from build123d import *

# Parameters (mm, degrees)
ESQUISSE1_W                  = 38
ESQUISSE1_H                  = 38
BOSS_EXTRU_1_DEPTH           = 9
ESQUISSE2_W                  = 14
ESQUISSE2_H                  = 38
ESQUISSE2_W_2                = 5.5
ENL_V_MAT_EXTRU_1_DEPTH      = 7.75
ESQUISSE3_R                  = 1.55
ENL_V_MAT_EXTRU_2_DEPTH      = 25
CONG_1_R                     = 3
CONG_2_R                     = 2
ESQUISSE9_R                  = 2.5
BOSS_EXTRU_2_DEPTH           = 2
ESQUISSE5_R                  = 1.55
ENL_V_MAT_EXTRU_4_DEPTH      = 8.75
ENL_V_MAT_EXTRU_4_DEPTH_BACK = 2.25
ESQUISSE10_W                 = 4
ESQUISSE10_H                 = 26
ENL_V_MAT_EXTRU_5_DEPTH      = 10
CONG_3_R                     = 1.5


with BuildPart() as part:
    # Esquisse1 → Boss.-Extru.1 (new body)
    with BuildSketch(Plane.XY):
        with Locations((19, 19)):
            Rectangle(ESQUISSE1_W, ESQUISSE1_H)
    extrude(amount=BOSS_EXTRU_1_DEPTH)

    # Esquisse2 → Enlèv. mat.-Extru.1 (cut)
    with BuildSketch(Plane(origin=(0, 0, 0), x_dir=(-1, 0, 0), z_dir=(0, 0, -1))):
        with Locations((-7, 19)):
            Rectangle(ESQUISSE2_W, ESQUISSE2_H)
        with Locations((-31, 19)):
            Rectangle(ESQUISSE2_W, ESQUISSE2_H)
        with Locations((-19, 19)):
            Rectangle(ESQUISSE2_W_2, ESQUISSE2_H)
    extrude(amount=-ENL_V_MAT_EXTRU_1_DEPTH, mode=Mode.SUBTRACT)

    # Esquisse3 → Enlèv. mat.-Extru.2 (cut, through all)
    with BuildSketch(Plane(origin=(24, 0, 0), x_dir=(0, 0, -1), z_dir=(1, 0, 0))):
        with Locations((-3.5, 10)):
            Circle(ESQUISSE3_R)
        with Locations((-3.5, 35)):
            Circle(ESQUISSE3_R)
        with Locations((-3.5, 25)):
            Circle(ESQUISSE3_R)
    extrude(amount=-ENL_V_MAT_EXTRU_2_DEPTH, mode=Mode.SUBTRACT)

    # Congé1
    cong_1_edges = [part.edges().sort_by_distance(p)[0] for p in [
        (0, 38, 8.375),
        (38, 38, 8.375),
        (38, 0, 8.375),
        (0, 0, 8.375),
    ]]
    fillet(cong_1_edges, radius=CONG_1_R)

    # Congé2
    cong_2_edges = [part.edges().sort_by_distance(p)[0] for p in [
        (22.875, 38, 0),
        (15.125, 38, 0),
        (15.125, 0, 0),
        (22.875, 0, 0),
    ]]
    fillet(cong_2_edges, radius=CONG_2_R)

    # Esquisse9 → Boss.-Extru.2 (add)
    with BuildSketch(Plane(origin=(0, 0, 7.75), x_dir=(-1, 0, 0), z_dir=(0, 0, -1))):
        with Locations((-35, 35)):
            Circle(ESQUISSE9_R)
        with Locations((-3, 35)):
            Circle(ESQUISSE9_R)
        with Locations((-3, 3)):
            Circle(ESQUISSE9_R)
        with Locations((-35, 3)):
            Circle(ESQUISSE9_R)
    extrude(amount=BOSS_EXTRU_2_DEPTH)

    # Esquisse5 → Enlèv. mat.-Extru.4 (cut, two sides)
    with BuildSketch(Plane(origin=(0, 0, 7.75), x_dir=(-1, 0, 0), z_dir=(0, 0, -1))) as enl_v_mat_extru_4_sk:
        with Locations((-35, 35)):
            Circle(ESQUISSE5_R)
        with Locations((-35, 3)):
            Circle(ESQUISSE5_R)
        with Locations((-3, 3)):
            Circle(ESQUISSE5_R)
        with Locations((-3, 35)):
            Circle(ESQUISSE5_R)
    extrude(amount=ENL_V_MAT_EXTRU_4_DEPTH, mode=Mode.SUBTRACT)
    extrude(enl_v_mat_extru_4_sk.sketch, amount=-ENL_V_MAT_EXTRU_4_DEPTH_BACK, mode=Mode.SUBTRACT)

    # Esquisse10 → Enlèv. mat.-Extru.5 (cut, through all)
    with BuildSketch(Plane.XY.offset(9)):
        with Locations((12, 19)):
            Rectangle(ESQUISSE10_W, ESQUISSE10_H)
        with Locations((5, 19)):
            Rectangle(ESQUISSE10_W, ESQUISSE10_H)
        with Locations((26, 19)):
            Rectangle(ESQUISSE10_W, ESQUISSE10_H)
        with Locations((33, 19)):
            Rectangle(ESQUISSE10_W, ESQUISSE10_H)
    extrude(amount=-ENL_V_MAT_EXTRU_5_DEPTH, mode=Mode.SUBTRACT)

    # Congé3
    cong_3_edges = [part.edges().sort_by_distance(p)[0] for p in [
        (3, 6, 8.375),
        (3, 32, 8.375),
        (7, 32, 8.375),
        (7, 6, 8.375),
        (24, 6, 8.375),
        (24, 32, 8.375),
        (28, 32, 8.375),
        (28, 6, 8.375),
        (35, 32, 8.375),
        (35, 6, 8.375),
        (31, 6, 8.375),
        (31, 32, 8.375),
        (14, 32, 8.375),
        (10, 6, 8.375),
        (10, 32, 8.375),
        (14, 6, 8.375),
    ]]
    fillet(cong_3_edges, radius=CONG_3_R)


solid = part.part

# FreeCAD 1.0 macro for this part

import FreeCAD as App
import Part
import Sketcher

V = App.Vector


def edges_at(feature, points):
    """Names of the edges that pass closest to the given points."""
    edges = feature.Shape.Edges
    near = lambda p: min(range(len(edges)), key=lambda i: edges[i].distToShape(Part.Vertex(*p))[0])
    return sorted({f"Edge{near(p) + 1}" for p in points})

doc = App.newDocument("Part")
body = doc.addObject("PartDesign::Body", "Body")

# Sketch on XY plane
sketch1 = body.newObject("Sketcher::SketchObject", "Sketch")
sketch1.AttachmentSupport = (doc.getObject("XY_Plane"), [""])
sketch1.MapMode = "FlatFace"
sketch1.addGeometry([
    Part.LineSegment(V(0, 38, 0), V(0, 0, 0)),
    Part.LineSegment(V(0, 0, 0), V(38, 0, 0)),
    Part.LineSegment(V(38, 0, 0), V(38, 38, 0)),
    Part.LineSegment(V(38, 38, 0), V(0, 38, 0)),
], False)
sketch1.addConstraint([
    Sketcher.Constraint("Coincident", 0, 2, 1, 1),
    Sketcher.Constraint("Coincident", 1, 2, 2, 1),
    Sketcher.Constraint("Coincident", 2, 2, 3, 1),
    Sketcher.Constraint("Coincident", 3, 2, 0, 1),
    Sketcher.Constraint("Vertical", 0),
    Sketcher.Constraint("Horizontal", 1),
    Sketcher.Constraint("Vertical", 2),
    Sketcher.Constraint("Horizontal", 3),
    Sketcher.Constraint("Coincident", 0, 2, -1, 1),
    Sketcher.Constraint("Equal", 3, 0),
    Sketcher.Constraint("DistanceX", 1, 1, 1, 2, 38.0),
])
pad1 = body.newObject("PartDesign::Pad", "Pad")
pad1.Profile = sketch1
pad1.Length = 9

# Sketch on XY plane
sketch2 = body.newObject("Sketcher::SketchObject", "Sketch001")
sketch2.AttachmentSupport = (doc.getObject("XY_Plane"), [""])
sketch2.MapMode = "FlatFace"
sketch2.addGeometry([
    Part.LineSegment(V(14, 38, 0), V(14, 0, 0)),  # 0
    Part.LineSegment(V(14, 0, 0), V(0, 0, 0)),  # 1
    Part.LineSegment(V(0, 0, 0), V(0, 38, 0)),  # 2
    Part.LineSegment(V(0, 38, 0), V(14, 38, 0)),  # 3
    Part.LineSegment(V(38, 38, 0), V(38, 0, 0)),  # 4
    Part.LineSegment(V(38, 0, 0), V(24, 0, 0)),  # 5
    Part.LineSegment(V(24, 0, 0), V(24, 38, 0)),  # 6
    Part.LineSegment(V(24, 38, 0), V(38, 38, 0)),  # 7
    Part.LineSegment(V(22, 38, 0), V(22, 0, 0)),  # 8
    Part.LineSegment(V(22, 0, 0), V(16, 0, 0)),  # 9
    Part.LineSegment(V(16, 0, 0), V(16, 38, 0)),  # 10
    Part.LineSegment(V(16, 38, 0), V(22, 38, 0)),  # 11
], False)
sketch2.addConstraint([
    Sketcher.Constraint("Coincident", 0, 2, 1, 1),
    Sketcher.Constraint("Coincident", 1, 2, 2, 1),
    Sketcher.Constraint("Coincident", 2, 2, 3, 1),
    Sketcher.Constraint("Coincident", 3, 2, 0, 1),
    Sketcher.Constraint("Coincident", 4, 2, 5, 1),
    Sketcher.Constraint("Coincident", 5, 2, 6, 1),
    Sketcher.Constraint("Coincident", 6, 2, 7, 1),
    Sketcher.Constraint("Coincident", 7, 2, 4, 1),
    Sketcher.Constraint("Coincident", 8, 2, 9, 1),
    Sketcher.Constraint("Coincident", 9, 2, 10, 1),
    Sketcher.Constraint("Coincident", 10, 2, 11, 1),
    Sketcher.Constraint("Coincident", 11, 2, 8, 1),
    Sketcher.Constraint("Vertical", 0),
    Sketcher.Constraint("Horizontal", 1),
    Sketcher.Constraint("Vertical", 2),
    Sketcher.Constraint("Horizontal", 3),
    Sketcher.Constraint("Vertical", 4),
    Sketcher.Constraint("Horizontal", 5),
    Sketcher.Constraint("Vertical", 6),
    Sketcher.Constraint("Horizontal", 7),
    Sketcher.Constraint("Vertical", 8),
    Sketcher.Constraint("Horizontal", 9),
    Sketcher.Constraint("Vertical", 10),
    Sketcher.Constraint("Horizontal", 11),
    Sketcher.Constraint("Coincident", 1, 2, -1, 1),
    Sketcher.Constraint("PointOnObject", 4, 2, -1),
    Sketcher.Constraint("PointOnObject", 8, 2, -1),
    Sketcher.Constraint("Horizontal", 3, 2, 6, 2),
    Sketcher.Constraint("Horizontal", 7, 2, 10, 2),
    Sketcher.Constraint("Equal", 3, 5),
    Sketcher.Constraint("DistanceX", 1, 2, 1, 1, 14.0),
    Sketcher.Constraint("DistanceY", 0, 2, 0, 1, 38.0),
    Sketcher.Constraint("DistanceX", 9, 2, 9, 1, 5.5),
    Sketcher.Constraint("DistanceX", -1, 1, 4, 2, 38.0),
    Sketcher.Constraint("DistanceX", -1, 1, 8, 2, 21.75),
])
pocket1 = body.newObject("PartDesign::Pocket", "Pocket")
pocket1.Profile = sketch2
pocket1.Length = 7.75
pocket1.Reversed = True

# Sketch on YZ plane
sketch3 = body.newObject("Sketcher::SketchObject", "Sketch002")
sketch3.AttachmentSupport = (doc.getObject("YZ_Plane"), [""])
sketch3.MapMode = "FlatFace"
sketch3.AttachmentOffset = App.Placement(V(0, 0, 24), App.Rotation())
sketch3.addGeometry([
    Part.Circle(V(10, 3.5, 0), V(0, 0, 1), 1.6),
    Part.Circle(V(35, 3.5, 0), V(0, 0, 1), 1.6),
    Part.Circle(V(25, 3.5, 0), V(0, 0, 1), 1.6),
], False)
sketch3.addConstraint([
    Sketcher.Constraint("Equal", 0, 1),
    Sketcher.Constraint("Equal", 1, 2),
    Sketcher.Constraint("Horizontal", 0, 3, 1, 3),
    Sketcher.Constraint("Horizontal", 1, 3, 2, 3),
    Sketcher.Constraint("Diameter", 0, 3.1),
    Sketcher.Constraint("DistanceX", -1, 1, 0, 3, 10.0),
    Sketcher.Constraint("DistanceX", -1, 1, 1, 3, 35.0),
    Sketcher.Constraint("DistanceX", -1, 1, 2, 3, 25.0),
    Sketcher.Constraint("DistanceY", -1, 1, 0, 3, 3.5),
])
pocket2 = body.newObject("PartDesign::Pocket", "Pocket001")
pocket2.Profile = sketch3
pocket2.Type = "ThroughAll"
doc.recompute()

fillet = body.newObject("PartDesign::Fillet", "Fillet")
fillet.Base = (pocket2, edges_at(pocket2, [
    (0, 38, 8.375),
    (38, 38, 8.375),
    (38, 0, 8.375),
    (0, 0, 8.375),
]))
fillet.Radius = 3
doc.recompute()

fillet2 = body.newObject("PartDesign::Fillet", "Fillet001")
fillet2.Base = (fillet, edges_at(fillet, [
    (22.875, 38, 0),
    (15.125, 38, 0),
    (15.125, 0, 0),
    (22.875, 0, 0),
]))
fillet2.Radius = 2

# Sketch on XY plane
sketch4 = body.newObject("Sketcher::SketchObject", "Sketch003")
sketch4.AttachmentSupport = (doc.getObject("XY_Plane"), [""])
sketch4.MapMode = "FlatFace"
sketch4.AttachmentOffset = App.Placement(V(0, 0, 7.75), App.Rotation())
sketch4.addGeometry([
    Part.Circle(V(35, 35, 0), V(0, 0, 1), 2.5),
    Part.Circle(V(3, 35, 0), V(0, 0, 1), 2.5),
    Part.Circle(V(3, 3, 0), V(0, 0, 1), 2.5),
    Part.Circle(V(35, 3, 0), V(0, 0, 1), 2.5),
], False)
sketch4.addConstraint([
    Sketcher.Constraint("Equal", 0, 1),
    Sketcher.Constraint("Equal", 1, 2),
    Sketcher.Constraint("Equal", 2, 3),
    Sketcher.Constraint("Horizontal", 0, 3, 1, 3),
    Sketcher.Constraint("Horizontal", 2, 3, 3, 3),
    Sketcher.Constraint("Vertical", 1, 3, 2, 3),
    Sketcher.Constraint("Vertical", 0, 3, 3, 3),
    Sketcher.Constraint("Diameter", 0, 5.0),
    Sketcher.Constraint("DistanceX", -1, 1, 0, 3, 35.0),
    Sketcher.Constraint("DistanceY", -1, 1, 0, 3, 35.0),
    Sketcher.Constraint("DistanceX", -1, 1, 1, 3, 3.0),
    Sketcher.Constraint("DistanceY", -1, 1, 2, 3, 3.0),
])
pad2 = body.newObject("PartDesign::Pad", "Pad001")
pad2.Profile = sketch4
pad2.Length = 2
pad2.Reversed = True

# Sketch on XY plane
sketch5 = body.newObject("Sketcher::SketchObject", "Sketch004")
sketch5.AttachmentSupport = (doc.getObject("XY_Plane"), [""])
sketch5.MapMode = "FlatFace"
sketch5.AttachmentOffset = App.Placement(V(0, 0, 7.75), App.Rotation())
sketch5.addGeometry([
    Part.Circle(V(35, 35, 0), V(0, 0, 1), 1.6),
    Part.Circle(V(35, 3, 0), V(0, 0, 1), 1.6),
    Part.Circle(V(3, 3, 0), V(0, 0, 1), 1.6),
    Part.Circle(V(3, 35, 0), V(0, 0, 1), 1.6),
], False)
sketch5.addConstraint([
    Sketcher.Constraint("Equal", 0, 1),
    Sketcher.Constraint("Equal", 1, 2),
    Sketcher.Constraint("Equal", 2, 3),
    Sketcher.Constraint("Horizontal", 1, 3, 2, 3),
    Sketcher.Constraint("Horizontal", 0, 3, 3, 3),
    Sketcher.Constraint("Vertical", 0, 3, 1, 3),
    Sketcher.Constraint("Vertical", 2, 3, 3, 3),
    Sketcher.Constraint("Diameter", 0, 3.1),
    Sketcher.Constraint("DistanceX", -1, 1, 0, 3, 35.0),
    Sketcher.Constraint("DistanceY", -1, 1, 0, 3, 35.0),
    Sketcher.Constraint("DistanceY", -1, 1, 1, 3, 3.0),
    Sketcher.Constraint("DistanceX", -1, 1, 2, 3, 3.0),
])
pocket3 = body.newObject("PartDesign::Pocket", "Pocket002")
pocket3.Profile = sketch5
pocket3.Type = "ThroughAll"
pocket3.Midplane = True

# Sketch on XY plane
sketch6 = body.newObject("Sketcher::SketchObject", "Sketch005")
sketch6.AttachmentSupport = (doc.getObject("XY_Plane"), [""])
sketch6.MapMode = "FlatFace"
sketch6.AttachmentOffset = App.Placement(V(0, 0, 9), App.Rotation())
sketch6.addGeometry([
    Part.LineSegment(V(10, 32, 0), V(10, 6, 0)),  # 0
    Part.LineSegment(V(10, 6, 0), V(14, 6, 0)),  # 1
    Part.LineSegment(V(14, 6, 0), V(14, 32, 0)),  # 2
    Part.LineSegment(V(14, 32, 0), V(10, 32, 0)),  # 3
    Part.LineSegment(V(3, 32, 0), V(3, 6, 0)),  # 4
    Part.LineSegment(V(3, 6, 0), V(7, 6, 0)),  # 5
    Part.LineSegment(V(7, 6, 0), V(7, 32, 0)),  # 6
    Part.LineSegment(V(7, 32, 0), V(3, 32, 0)),  # 7
    Part.LineSegment(V(24, 32, 0), V(24, 6, 0)),  # 8
    Part.LineSegment(V(24, 6, 0), V(28, 6, 0)),  # 9
    Part.LineSegment(V(28, 6, 0), V(28, 32, 0)),  # 10
    Part.LineSegment(V(28, 32, 0), V(24, 32, 0)),  # 11
    Part.LineSegment(V(31, 32, 0), V(31, 6, 0)),  # 12
    Part.LineSegment(V(31, 6, 0), V(35, 6, 0)),  # 13
    Part.LineSegment(V(35, 6, 0), V(35, 32, 0)),  # 14
    Part.LineSegment(V(35, 32, 0), V(31, 32, 0)),  # 15
], False)
sketch6.addConstraint([
    Sketcher.Constraint("Coincident", 0, 2, 1, 1),
    Sketcher.Constraint("Coincident", 1, 2, 2, 1),
    Sketcher.Constraint("Coincident", 2, 2, 3, 1),
    Sketcher.Constraint("Coincident", 3, 2, 0, 1),
    Sketcher.Constraint("Coincident", 4, 2, 5, 1),
    Sketcher.Constraint("Coincident", 5, 2, 6, 1),
    Sketcher.Constraint("Coincident", 6, 2, 7, 1),
    Sketcher.Constraint("Coincident", 7, 2, 4, 1),
    Sketcher.Constraint("Coincident", 8, 2, 9, 1),
    Sketcher.Constraint("Coincident", 9, 2, 10, 1),
    Sketcher.Constraint("Coincident", 10, 2, 11, 1),
    Sketcher.Constraint("Coincident", 11, 2, 8, 1),
    Sketcher.Constraint("Coincident", 12, 2, 13, 1),
    Sketcher.Constraint("Coincident", 13, 2, 14, 1),
    Sketcher.Constraint("Coincident", 14, 2, 15, 1),
    Sketcher.Constraint("Coincident", 15, 2, 12, 1),
    Sketcher.Constraint("Vertical", 0),
    Sketcher.Constraint("Horizontal", 1),
    Sketcher.Constraint("Vertical", 2),
    Sketcher.Constraint("Horizontal", 3),
    Sketcher.Constraint("Vertical", 4),
    Sketcher.Constraint("Horizontal", 5),
    Sketcher.Constraint("Vertical", 6),
    Sketcher.Constraint("Horizontal", 7),
    Sketcher.Constraint("Vertical", 8),
    Sketcher.Constraint("Horizontal", 9),
    Sketcher.Constraint("Vertical", 10),
    Sketcher.Constraint("Horizontal", 11),
    Sketcher.Constraint("Vertical", 12),
    Sketcher.Constraint("Horizontal", 13),
    Sketcher.Constraint("Vertical", 14),
    Sketcher.Constraint("Horizontal", 15),
    Sketcher.Constraint("Horizontal", 1, 2, 4, 2),
    Sketcher.Constraint("Horizontal", 3, 2, 6, 2),
    Sketcher.Constraint("Horizontal", 5, 2, 8, 2),
    Sketcher.Constraint("Horizontal", 7, 2, 10, 2),
    Sketcher.Constraint("Horizontal", 9, 2, 12, 2),
    Sketcher.Constraint("Horizontal", 11, 2, 14, 2),
    Sketcher.Constraint("Equal", 3, 5),
    Sketcher.Constraint("Equal", 7, 9),
    Sketcher.Constraint("Equal", 11, 13),
    Sketcher.Constraint("DistanceX", 1, 1, 1, 2, 4.0),
    Sketcher.Constraint("DistanceY", 0, 2, 0, 1, 26.0),
    Sketcher.Constraint("DistanceX", -1, 1, 0, 2, 10.0),
    Sketcher.Constraint("DistanceY", -1, 1, 0, 2, 6.0),
    Sketcher.Constraint("DistanceX", -1, 1, 4, 2, 3.0),
    Sketcher.Constraint("DistanceX", -1, 1, 8, 2, 24.0),
    Sketcher.Constraint("DistanceX", -1, 1, 12, 2, 31.0),
])
pocket4 = body.newObject("PartDesign::Pocket", "Pocket003")
pocket4.Profile = sketch6
pocket4.Type = "ThroughAll"
doc.recompute()

fillet3 = body.newObject("PartDesign::Fillet", "Fillet002")
fillet3.Base = (pocket4, edges_at(pocket4, [
    (3, 6, 8.375),
    (3, 32, 8.375),
    (7, 32, 8.375),
    (7, 6, 8.375),
    (24, 6, 8.375),
    (24, 32, 8.375),
    (28, 32, 8.375),
    (28, 6, 8.375),
    (35, 32, 8.375),
    (35, 6, 8.375),
    (31, 6, 8.375),
    (31, 32, 8.375),
    (14, 32, 8.375),
    (10, 6, 8.375),
    (10, 32, 8.375),
    (14, 6, 8.375),
]))
fillet3.Radius = 1.5

doc.recompute()
